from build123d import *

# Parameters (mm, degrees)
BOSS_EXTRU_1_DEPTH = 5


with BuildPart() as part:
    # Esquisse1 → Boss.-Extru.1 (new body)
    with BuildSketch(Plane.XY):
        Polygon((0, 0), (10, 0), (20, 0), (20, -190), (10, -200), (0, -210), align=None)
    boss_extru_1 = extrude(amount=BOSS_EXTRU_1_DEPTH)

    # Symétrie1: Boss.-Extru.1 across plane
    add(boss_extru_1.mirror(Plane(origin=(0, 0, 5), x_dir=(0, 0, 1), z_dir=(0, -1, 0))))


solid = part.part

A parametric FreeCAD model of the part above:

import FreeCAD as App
import Part
import Sketcher
from FreeCAD import Vector
Q = App.Units.Quantity


def add_polygon(sketch, points):
    """Adds a closed chain of lines whose ends are joined by coincident constraints."""
    first, n = sketch.GeometryCount, len(points)
    for a, b in zip(points, points[1:] + points[:1]):
        sketch.addGeometry(Part.LineSegment(App.Vector(*a, 0), App.Vector(*b, 0)), False)
    for i in range(n):
        sketch.addConstraint(Sketcher.Constraint("Coincident", first + i, 2, first + (i + 1) % n, 1))

doc = App.newDocument("Part")
body = doc.addObject("PartDesign::Body", "Body")

# Sketch on XY plane
sketch1 = body.newObject("Sketcher::SketchObject", "Sketch")
sketch1.AttachmentSupport = (doc.getObject("XY_Plane"), [""])
sketch1.MapMode = "FlatFace"
add_polygon(sketch1, [(20, 0), (0, 0), (0, -210), (20, -190)])  # lines 0-3
sketch1.addConstraint([
    Sketcher.Constraint("Horizontal", 0),
    Sketcher.Constraint("Vertical", 1),
    Sketcher.Constraint("Vertical", 3),
    Sketcher.Constraint("Coincident", 0, 2, -1, 1),
    Sketcher.Constraint("DistanceX", 0, 2, 0, 1, Q("20 mm")),
    Sketcher.Constraint("DistanceY", 1, 2, 1, 1, Q("210 mm")),
    Sketcher.Constraint("DistanceY", 3, 1, 3, 2, Q("190 mm")),
])
pad1 = body.newObject("PartDesign::Pad", "Pad")
pad1.Profile = sketch1
pad1.Length = 5
doc.recompute()

mirrored = body.newObject("PartDesign::Mirrored", "Mirrored")
mirrored.Originals = [pad1]
mirrored.MirrorPlane = (doc.getObject("XZ_Plane"), [""])
body.Tip = mirrored

doc.recompute()
